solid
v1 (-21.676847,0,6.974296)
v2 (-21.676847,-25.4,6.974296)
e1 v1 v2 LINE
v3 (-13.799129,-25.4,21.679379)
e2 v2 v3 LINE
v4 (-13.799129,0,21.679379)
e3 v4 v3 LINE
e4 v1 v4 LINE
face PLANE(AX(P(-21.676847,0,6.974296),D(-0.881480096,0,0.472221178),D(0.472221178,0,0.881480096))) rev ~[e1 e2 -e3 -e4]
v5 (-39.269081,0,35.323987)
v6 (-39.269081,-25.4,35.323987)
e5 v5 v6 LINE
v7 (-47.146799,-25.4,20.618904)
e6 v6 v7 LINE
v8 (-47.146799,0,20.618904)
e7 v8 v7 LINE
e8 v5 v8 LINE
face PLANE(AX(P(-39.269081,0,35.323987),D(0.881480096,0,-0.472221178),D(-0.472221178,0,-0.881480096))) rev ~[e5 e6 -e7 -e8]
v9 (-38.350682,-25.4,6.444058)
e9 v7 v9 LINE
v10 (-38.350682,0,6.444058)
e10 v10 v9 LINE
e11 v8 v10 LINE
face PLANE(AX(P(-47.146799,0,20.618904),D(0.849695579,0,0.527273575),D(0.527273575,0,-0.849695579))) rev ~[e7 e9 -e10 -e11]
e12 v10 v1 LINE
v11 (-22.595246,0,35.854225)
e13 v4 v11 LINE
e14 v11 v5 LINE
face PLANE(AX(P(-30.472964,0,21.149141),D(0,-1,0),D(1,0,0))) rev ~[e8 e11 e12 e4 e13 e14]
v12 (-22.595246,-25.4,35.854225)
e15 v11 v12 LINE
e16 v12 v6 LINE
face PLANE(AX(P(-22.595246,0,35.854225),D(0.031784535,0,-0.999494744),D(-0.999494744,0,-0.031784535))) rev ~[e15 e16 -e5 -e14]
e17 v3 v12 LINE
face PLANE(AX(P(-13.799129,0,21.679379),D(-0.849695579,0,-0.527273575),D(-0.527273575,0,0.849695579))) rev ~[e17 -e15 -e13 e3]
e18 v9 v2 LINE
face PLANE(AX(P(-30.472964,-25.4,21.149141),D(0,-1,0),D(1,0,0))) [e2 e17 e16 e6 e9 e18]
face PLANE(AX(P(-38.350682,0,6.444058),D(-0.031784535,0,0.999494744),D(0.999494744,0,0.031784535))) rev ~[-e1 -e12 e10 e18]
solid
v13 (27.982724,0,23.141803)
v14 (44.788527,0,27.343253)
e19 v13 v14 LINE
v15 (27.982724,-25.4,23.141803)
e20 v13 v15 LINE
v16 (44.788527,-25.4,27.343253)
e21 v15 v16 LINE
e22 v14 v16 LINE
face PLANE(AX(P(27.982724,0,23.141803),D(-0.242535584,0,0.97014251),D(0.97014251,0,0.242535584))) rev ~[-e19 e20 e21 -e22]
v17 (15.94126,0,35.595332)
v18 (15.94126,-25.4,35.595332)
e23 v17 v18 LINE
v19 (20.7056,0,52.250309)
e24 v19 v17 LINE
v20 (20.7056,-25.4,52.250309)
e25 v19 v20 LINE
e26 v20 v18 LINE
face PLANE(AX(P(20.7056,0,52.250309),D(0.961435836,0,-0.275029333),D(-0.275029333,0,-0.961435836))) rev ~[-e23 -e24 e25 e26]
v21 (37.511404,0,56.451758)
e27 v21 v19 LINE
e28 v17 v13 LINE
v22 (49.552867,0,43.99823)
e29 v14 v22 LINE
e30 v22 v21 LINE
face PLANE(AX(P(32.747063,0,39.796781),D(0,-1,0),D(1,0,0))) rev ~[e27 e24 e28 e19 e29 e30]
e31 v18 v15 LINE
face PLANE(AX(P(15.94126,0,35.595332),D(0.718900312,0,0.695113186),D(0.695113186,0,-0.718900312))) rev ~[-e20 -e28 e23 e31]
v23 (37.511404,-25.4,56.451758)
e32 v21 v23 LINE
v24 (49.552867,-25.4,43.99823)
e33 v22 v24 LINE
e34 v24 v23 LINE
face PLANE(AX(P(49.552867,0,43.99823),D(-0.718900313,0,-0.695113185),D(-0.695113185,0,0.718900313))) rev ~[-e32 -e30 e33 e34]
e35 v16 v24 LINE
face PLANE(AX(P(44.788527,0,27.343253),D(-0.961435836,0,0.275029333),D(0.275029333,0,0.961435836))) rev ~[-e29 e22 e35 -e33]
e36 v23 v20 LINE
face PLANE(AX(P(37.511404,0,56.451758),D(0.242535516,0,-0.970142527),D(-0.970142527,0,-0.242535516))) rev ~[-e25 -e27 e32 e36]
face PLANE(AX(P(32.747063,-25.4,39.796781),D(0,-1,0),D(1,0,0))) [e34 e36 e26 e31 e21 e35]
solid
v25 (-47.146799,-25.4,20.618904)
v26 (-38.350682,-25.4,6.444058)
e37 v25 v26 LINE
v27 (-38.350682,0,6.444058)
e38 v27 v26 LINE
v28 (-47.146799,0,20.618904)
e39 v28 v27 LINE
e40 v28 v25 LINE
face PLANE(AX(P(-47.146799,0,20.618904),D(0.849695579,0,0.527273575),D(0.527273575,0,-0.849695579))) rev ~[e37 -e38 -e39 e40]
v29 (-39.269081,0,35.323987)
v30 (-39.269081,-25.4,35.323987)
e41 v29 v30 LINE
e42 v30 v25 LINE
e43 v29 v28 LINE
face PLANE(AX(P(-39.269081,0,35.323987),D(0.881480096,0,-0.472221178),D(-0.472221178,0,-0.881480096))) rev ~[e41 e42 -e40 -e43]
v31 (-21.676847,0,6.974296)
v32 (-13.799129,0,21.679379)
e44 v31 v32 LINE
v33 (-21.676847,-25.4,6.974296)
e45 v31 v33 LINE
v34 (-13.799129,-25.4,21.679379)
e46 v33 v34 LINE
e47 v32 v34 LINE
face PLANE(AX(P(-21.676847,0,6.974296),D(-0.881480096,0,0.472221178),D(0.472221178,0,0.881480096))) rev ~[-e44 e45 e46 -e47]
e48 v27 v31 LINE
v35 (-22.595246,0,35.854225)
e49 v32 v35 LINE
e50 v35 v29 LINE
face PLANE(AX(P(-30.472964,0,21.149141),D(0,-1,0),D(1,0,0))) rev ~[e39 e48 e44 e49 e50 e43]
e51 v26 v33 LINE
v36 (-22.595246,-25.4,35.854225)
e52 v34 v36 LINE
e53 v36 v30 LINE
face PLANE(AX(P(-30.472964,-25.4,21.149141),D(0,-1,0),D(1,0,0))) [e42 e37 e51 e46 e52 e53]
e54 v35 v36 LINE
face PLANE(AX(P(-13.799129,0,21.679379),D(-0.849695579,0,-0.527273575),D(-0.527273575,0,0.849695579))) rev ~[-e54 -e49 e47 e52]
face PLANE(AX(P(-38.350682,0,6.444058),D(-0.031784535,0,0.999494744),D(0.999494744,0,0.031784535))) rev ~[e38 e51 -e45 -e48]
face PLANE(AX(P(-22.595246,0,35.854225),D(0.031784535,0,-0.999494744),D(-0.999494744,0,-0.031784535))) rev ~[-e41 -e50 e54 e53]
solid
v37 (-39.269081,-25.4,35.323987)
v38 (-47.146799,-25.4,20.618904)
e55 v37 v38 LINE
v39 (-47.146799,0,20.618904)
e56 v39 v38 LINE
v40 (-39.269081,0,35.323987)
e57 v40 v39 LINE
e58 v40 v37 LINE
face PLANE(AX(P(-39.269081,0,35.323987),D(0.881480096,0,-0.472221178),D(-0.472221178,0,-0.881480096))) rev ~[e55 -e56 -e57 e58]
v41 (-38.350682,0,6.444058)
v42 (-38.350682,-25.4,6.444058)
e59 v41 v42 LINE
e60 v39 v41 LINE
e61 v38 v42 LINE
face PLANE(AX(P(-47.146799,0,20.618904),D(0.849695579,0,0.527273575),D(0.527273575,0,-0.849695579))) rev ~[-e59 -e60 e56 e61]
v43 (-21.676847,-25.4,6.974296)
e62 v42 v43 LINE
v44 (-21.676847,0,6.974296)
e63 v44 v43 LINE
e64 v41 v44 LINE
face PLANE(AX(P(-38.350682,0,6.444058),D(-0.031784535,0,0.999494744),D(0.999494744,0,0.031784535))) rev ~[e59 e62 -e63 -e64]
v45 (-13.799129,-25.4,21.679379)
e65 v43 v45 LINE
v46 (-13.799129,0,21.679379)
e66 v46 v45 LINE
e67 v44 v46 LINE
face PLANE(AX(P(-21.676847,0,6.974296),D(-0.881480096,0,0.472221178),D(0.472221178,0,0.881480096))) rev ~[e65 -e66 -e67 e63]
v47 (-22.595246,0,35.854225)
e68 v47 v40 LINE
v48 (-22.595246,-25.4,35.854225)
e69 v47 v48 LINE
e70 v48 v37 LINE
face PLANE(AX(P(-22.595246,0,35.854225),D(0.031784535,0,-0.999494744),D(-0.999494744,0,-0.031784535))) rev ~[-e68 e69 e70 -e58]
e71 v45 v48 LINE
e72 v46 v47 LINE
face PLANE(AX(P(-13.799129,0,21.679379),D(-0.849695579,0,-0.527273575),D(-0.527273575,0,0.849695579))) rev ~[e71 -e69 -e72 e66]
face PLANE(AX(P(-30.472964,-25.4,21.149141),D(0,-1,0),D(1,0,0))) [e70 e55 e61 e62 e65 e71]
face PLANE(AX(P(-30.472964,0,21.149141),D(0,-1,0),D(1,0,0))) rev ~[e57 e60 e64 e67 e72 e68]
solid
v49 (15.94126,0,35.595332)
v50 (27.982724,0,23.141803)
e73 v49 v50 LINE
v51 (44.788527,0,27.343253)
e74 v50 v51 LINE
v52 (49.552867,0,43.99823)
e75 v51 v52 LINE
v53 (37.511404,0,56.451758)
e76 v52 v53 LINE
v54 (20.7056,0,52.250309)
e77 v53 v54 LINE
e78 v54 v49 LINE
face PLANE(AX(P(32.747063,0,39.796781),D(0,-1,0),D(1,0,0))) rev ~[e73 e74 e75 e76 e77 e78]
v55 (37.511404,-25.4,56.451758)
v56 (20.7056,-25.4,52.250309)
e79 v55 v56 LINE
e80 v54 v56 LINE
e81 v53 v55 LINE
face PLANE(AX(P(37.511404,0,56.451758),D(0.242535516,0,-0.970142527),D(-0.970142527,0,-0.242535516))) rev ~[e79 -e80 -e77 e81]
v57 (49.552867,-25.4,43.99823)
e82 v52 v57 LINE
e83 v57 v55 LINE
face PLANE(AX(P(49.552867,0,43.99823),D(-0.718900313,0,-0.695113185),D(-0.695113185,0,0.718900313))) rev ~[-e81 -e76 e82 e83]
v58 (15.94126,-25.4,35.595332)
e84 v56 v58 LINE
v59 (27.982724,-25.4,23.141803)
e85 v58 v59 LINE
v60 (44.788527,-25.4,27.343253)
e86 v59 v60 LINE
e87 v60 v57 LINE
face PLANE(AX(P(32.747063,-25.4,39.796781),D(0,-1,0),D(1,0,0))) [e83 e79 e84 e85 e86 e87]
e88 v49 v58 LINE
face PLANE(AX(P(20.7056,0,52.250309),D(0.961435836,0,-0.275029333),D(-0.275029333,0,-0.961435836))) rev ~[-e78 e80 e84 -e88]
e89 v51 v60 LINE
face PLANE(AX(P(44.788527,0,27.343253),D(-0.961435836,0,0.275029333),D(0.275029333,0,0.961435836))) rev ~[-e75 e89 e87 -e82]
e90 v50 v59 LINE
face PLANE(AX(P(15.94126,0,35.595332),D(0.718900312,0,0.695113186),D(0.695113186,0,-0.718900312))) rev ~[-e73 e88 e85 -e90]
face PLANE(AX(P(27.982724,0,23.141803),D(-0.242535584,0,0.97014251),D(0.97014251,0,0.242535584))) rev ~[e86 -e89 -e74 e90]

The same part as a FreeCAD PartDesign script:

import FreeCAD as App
import Part
import Sketcher
Q = App.Units.Quantity

doc = App.newDocument("Part")
body = doc.addObject("PartDesign::Body", "Body")

# Sketch on XZ plane
sketch1 = body.newObject("Sketcher::SketchObject", "Sketch")
sketch1.AttachmentSupport = (doc.getObject("XZ_Plane"), [""])
sketch1.MapMode = "FlatFace"
sketch1.addGeometry([
    Part.LineSegment(App.Vector(-21.676847, 6.974296, 0), App.Vector(-13.799129, 21.679379, 0)),  # 0
    Part.LineSegment(App.Vector(-13.799129, 21.679379, 0), App.Vector(-22.595246, 35.854225, 0)),  # 1
    Part.LineSegment(App.Vector(-22.595246, 35.854225, 0), App.Vector(-39.269081, 35.323987, 0)),  # 2
    Part.LineSegment(App.Vector(-39.269081, 35.323987, 0), App.Vector(-47.146799, 20.618904, 0)),  # 3
    Part.LineSegment(App.Vector(-47.146799, 20.618904, 0), App.Vector(-38.350682, 6.444058, 0)),  # 4
    Part.LineSegment(App.Vector(-38.350682, 6.444058, 0), App.Vector(-21.676847, 6.974296, 0)),  # 5
], False)
sketch1.addConstraint([
    Sketcher.Constraint("Coincident", 0, 2, 1, 1),
    Sketcher.Constraint("Coincident", 1, 2, 2, 1),
    Sketcher.Constraint("Coincident", 2, 2, 3, 1),
    Sketcher.Constraint("Coincident", 3, 2, 4, 1),
    Sketcher.Constraint("Coincident", 4, 2, 5, 1),
    Sketcher.Constraint("Coincident", 5, 2, 0, 1),
    Sketcher.Constraint("Parallel", 0, 3),
    Sketcher.Constraint("Parallel", 1, 4),
    Sketcher.Constraint("Parallel", 2, 5),
    Sketcher.Constraint("Equal", 0, 1),
    Sketcher.Constraint("Equal", 1, 2),
    Sketcher.Constraint("Equal", 2, 3),
    Sketcher.Constraint("DistanceX", 3, 2, -1, 1, 47.146799),
    Sketcher.Constraint("DistanceX", 2, 2, 4, 2, 0.918399),
    Sketcher.Constraint("DistanceX", 0, 2, -1, 1, 13.799129),
    Sketcher.Constraint("DistanceY", -1, 1, 0, 2, 21.679379),
    Sketcher.Constraint("DistanceX", 2, 2, -1, 1, 39.269081),
    Sketcher.Constraint("DistanceY", 0, 2, 2, 2, 13.644608),
])
pad1 = body.newObject("PartDesign::Pad", "Pad")
pad1.Profile = sketch1
pad1.Length = Q("1 in")
body2 = doc.addObject("PartDesign::Body", "Body001")
body2.AllowCompound = True

# Sketch on XZ plane
sketch2 = body2.newObject("Sketcher::SketchObject", "Sketch001")
sketch2.AttachmentSupport = (doc.getObject("XZ_Plane001"), [""])
sketch2.MapMode = "FlatFace"
sketch2.addGeometry([
    Part.LineSegment(App.Vector(-21.676847, 6.974296, 0), App.Vector(-13.799129, 21.679379, 0)),  # 0
    Part.LineSegment(App.Vector(-13.799129, 21.679379, 0), App.Vector(-22.595246, 35.854225, 0)),  # 1
    Part.LineSegment(App.Vector(-22.595246, 35.854225, 0), App.Vector(-39.269081, 35.323987, 0)),  # 2
    Part.LineSegment(App.Vector(-39.269081, 35.323987, 0), App.Vector(-47.146799, 20.618904, 0)),  # 3
    Part.LineSegment(App.Vector(-47.146799, 20.618904, 0), App.Vector(-38.350682, 6.444058, 0)),  # 4
    Part.LineSegment(App.Vector(-38.350682, 6.444058, 0), App.Vector(-21.676847, 6.974296, 0)),  # 5
    Part.LineSegment(App.Vector(27.982724, 23.141803, 0), App.Vector(44.788527, 27.343253, 0)),  # 6
    Part.LineSegment(App.Vector(44.788527, 27.343253, 0), App.Vector(49.552867, 43.99823, 0)),  # 7
    Part.LineSegment(App.Vector(49.552867, 43.99823, 0), App.Vector(37.511404, 56.451758, 0)),  # 8
    Part.LineSegment(App.Vector(37.511404, 56.451758, 0), App.Vector(20.7056, 52.250309, 0)),  # 9
    Part.LineSegment(App.Vector(20.7056, 52.250309, 0), App.Vector(15.94126, 35.595332, 0)),  # 10
    Part.LineSegment(App.Vector(15.94126, 35.595332, 0), App.Vector(27.982724, 23.141803, 0)),  # 11
], False)
sketch2.addConstraint([
    Sketcher.Constraint("Coincident", 0, 2, 1, 1),
    Sketcher.Constraint("Coincident", 1, 2, 2, 1),
    Sketcher.Constraint("Coincident", 2, 2, 3, 1),
    Sketcher.Constraint("Coincident", 3, 2, 4, 1),
    Sketcher.Constraint("Coincident", 4, 2, 5, 1),
    Sketcher.Constraint("Coincident", 5, 2, 0, 1),
    Sketcher.Constraint("Coincident", 6, 2, 7, 1),
    Sketcher.Constraint("Coincident", 7, 2, 8, 1),
    Sketcher.Constraint("Coincident", 8, 2, 9, 1),
    Sketcher.Constraint("Coincident", 9, 2, 10, 1),
    Sketcher.Constraint("Coincident", 10, 2, 11, 1),
    Sketcher.Constraint("Coincident", 11, 2, 6, 1),
    Sketcher.Constraint("Parallel", 0, 3),
    Sketcher.Constraint("Parallel", 1, 4),
    Sketcher.Constraint("Parallel", 2, 5),
    Sketcher.Constraint("Parallel", 6, 9),
    Sketcher.Constraint("Parallel", 7, 10),
    Sketcher.Constraint("Parallel", 8, 11),
    Sketcher.Constraint("Equal", 0, 1),
    Sketcher.Constraint("Equal", 1, 2),
    Sketcher.Constraint("Equal", 2, 3),
    Sketcher.Constraint("Equal", 6, 7),
    Sketcher.Constraint("Equal", 7, 8),
    Sketcher.Constraint("Equal", 8, 9),
    Sketcher.Constraint("DistanceX", 3, 2, -1, 1, 47.146799),
    Sketcher.Constraint("DistanceX", -1, 1, 9, 2, 20.7056),
    Sketcher.Constraint("DistanceX", 2, 2, 4, 2, 0.918399),
    Sketcher.Constraint("DistanceX", 0, 2, -1, 1, 13.799129),
    Sketcher.Constraint("DistanceY", -1, 1, 0, 2, 21.679379),
    Sketcher.Constraint("DistanceX", 2, 2, -1, 1, 39.269081),
    Sketcher.Constraint("DistanceY", -1, 1, 7, 2, 43.99823),
    Sketcher.Constraint("DistanceY", -1, 1, 9, 2, 52.250309),
    Sketcher.Constraint("DistanceX", -1, 1, 10, 2, 15.94126),
    Sketcher.Constraint("DistanceY", 0, 2, 2, 2, 13.644608),
    Sketcher.Constraint("DistanceY", 6, 2, 1, 2, 8.510972),
    Sketcher.Constraint("DistanceX", 2, 2, 6, 2, 84.057608),
])
pad2 = body2.newObject("PartDesign::Pad", "Pad001")
pad2.Profile = sketch2
pad2.Length = Q("1 in")
body3 = doc.addObject("PartDesign::Body", "Body002")
body3.AllowCompound = True

# Sketch on XZ plane
sketch3 = body3.newObject("Sketcher::SketchObject", "Sketch002")
sketch3.AttachmentSupport = (doc.getObject("XZ_Plane002"), [""])
sketch3.MapMode = "FlatFace"
sketch3.addGeometry([
    Part.LineSegment(App.Vector(-21.676847, 6.974296, 0), App.Vector(-13.799129, 21.679379, 0)),  # 0
    Part.LineSegment(App.Vector(-13.799129, 21.679379, 0), App.Vector(-22.595246, 35.854225, 0)),  # 1
    Part.LineSegment(App.Vector(-22.595246, 35.854225, 0), App.Vector(-39.269081, 35.323987, 0)),  # 2
    Part.LineSegment(App.Vector(-39.269081, 35.323987, 0), App.Vector(-47.146799, 20.618904, 0)),  # 3
    Part.LineSegment(App.Vector(-47.146799, 20.618904, 0), App.Vector(-38.350682, 6.444058, 0)),  # 4
    Part.LineSegment(App.Vector(-38.350682, 6.444058, 0), App.Vector(-21.676847, 6.974296, 0)),  # 5
    Part.LineSegment(App.Vector(27.982724, 23.141803, 0), App.Vector(44.788527, 27.343253, 0)),  # 6
    Part.LineSegment(App.Vector(44.788527, 27.343253, 0), App.Vector(49.552867, 43.99823, 0)),  # 7
    Part.LineSegment(App.Vector(49.552867, 43.99823, 0), App.Vector(37.511404, 56.451758, 0)),  # 8
    Part.LineSegment(App.Vector(37.511404, 56.451758, 0), App.Vector(20.7056, 52.250309, 0)),  # 9
    Part.LineSegment(App.Vector(20.7056, 52.250309, 0), App.Vector(15.94126, 35.595332, 0)),  # 10
    Part.LineSegment(App.Vector(15.94126, 35.595332, 0), App.Vector(27.982724, 23.141803, 0)),  # 11
], False)
sketch3.addConstraint([
    Sketcher.Constraint("Coincident", 0, 2, 1, 1),
    Sketcher.Constraint("Coincident", 1, 2, 2, 1),
    Sketcher.Constraint("Coincident", 2, 2, 3, 1),
    Sketcher.Constraint("Coincident", 3, 2, 4, 1),
    Sketcher.Constraint("Coincident", 4, 2, 5, 1),
    Sketcher.Constraint("Coincident", 5, 2, 0, 1),
    Sketcher.Constraint("Coincident", 6, 2, 7, 1),
    Sketcher.Constraint("Coincident", 7, 2, 8, 1),
    Sketcher.Constraint("Coincident", 8, 2, 9, 1),
    Sketcher.Constraint("Coincident", 9, 2, 10, 1),
    Sketcher.Constraint("Coincident", 10, 2, 11, 1),
    Sketcher.Constraint("Coincident", 11, 2, 6, 1),
    Sketcher.Constraint("Parallel", 0, 3),
    Sketcher.Constraint("Parallel", 1, 4),
    Sketcher.Constraint("Parallel", 2, 5),
    Sketcher.Constraint("Parallel", 6, 9),
    Sketcher.Constraint("Parallel", 7, 10),
    Sketcher.Constraint("Parallel", 8, 11),
    Sketcher.Constraint("Equal", 0, 1),
    Sketcher.Constraint("Equal", 1, 2),
    Sketcher.Constraint("Equal", 2, 3),
    Sketcher.Constraint("Equal", 6, 7),
    Sketcher.Constraint("Equal", 7, 8),
    Sketcher.Constraint("Equal", 8, 9),
    Sketcher.Constraint("DistanceX", 3, 2, -1, 1, 47.146799),
    Sketcher.Constraint("DistanceX", -1, 1, 9, 2, 20.7056),
    Sketcher.Constraint("DistanceX", 2, 2, 4, 2, 0.918399),
    Sketcher.Constraint("DistanceX", 0, 2, -1, 1, 13.799129),
    Sketcher.Constraint("DistanceY", -1, 1, 0, 2, 21.679379),
    Sketcher.Constraint("DistanceX", 2, 2, -1, 1, 39.269081),
    Sketcher.Constraint("DistanceY", -1, 1, 7, 2, 43.99823),
    Sketcher.Constraint("DistanceY", -1, 1, 9, 2, 52.250309),
    Sketcher.Constraint("DistanceX", -1, 1, 10, 2, 15.94126),
    Sketcher.Constraint("DistanceY", 0, 2, 2, 2, 13.644608),
    Sketcher.Constraint("DistanceY", 6, 2, 1, 2, 8.510972),
    Sketcher.Constraint("DistanceX", 2, 2, 6, 2, 84.057608),
])
pad3 = body3.newObject("PartDesign::Pad", "Pad002")
pad3.Profile = sketch3
pad3.Length = Q("1 in")

doc.recompute()
